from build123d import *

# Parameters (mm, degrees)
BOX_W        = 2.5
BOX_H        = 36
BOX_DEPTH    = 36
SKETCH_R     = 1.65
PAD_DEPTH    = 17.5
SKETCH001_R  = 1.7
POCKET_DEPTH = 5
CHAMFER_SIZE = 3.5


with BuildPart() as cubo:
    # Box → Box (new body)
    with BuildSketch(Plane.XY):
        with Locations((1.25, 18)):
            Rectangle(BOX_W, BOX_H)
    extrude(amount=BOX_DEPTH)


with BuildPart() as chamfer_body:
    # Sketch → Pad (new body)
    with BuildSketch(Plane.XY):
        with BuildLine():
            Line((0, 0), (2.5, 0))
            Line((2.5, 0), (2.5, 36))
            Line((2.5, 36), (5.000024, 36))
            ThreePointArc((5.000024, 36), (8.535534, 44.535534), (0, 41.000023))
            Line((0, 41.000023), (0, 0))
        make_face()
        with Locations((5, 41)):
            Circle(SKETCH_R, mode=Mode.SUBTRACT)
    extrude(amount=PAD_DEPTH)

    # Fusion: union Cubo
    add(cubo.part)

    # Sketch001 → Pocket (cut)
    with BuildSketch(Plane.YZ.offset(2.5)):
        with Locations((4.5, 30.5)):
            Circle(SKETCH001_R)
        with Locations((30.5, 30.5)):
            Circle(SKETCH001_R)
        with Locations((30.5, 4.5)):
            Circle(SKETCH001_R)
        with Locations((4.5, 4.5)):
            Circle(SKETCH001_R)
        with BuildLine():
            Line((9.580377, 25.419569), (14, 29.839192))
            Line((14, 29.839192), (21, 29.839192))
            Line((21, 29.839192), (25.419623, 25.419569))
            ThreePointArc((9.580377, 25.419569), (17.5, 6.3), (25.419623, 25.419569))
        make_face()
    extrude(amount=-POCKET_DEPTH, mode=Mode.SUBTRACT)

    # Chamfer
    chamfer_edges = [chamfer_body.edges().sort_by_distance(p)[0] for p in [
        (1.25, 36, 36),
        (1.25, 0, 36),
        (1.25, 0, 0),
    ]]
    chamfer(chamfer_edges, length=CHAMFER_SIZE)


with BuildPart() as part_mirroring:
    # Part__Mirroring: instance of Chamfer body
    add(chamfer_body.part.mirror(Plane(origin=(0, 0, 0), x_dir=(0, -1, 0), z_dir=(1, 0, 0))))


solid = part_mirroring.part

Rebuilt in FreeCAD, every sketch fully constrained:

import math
import FreeCAD as App
import Part
import Sketcher
from FreeCAD import Vector
Q = App.Units.Quantity


def edges_at(feature, points):
    """Names of the edges that pass closest to the given points."""
    edges = feature.Shape.Edges
    near = lambda p: min(range(len(edges)), key=lambda i: edges[i].distToShape(Part.Vertex(*p))[0])
    return sorted({f"Edge{near(p) + 1}" for p in points})

doc = App.newDocument("Part")
body = doc.addObject("PartDesign::Body", "Body")

sketch1 = body.newObject("Sketcher::SketchObject", "Sketch")
sketch1.AttachmentSupport = (doc.getObject("XY_Plane"), [""])
sketch1.MapMode = "FlatFace"
sketch1.addGeometry([
    Part.LineSegment(Vector(0, 36, 0), Vector(0, 0, 0)),
    Part.LineSegment(Vector(0, 0, 0), Vector(2.5, 0, 0)),
    Part.LineSegment(Vector(2.5, 0, 0), Vector(2.5, 36, 0)),
    Part.LineSegment(Vector(2.5, 36, 0), Vector(0, 36, 0)),
], False)
sketch1.addConstraint([
    Sketcher.Constraint("Coincident", 0, 2, 1, 1),
    Sketcher.Constraint("Coincident", 1, 2, 2, 1),
    Sketcher.Constraint("Coincident", 2, 2, 3, 1),
    Sketcher.Constraint("Coincident", 3, 2, 0, 1),
    Sketcher.Constraint("Vertical", 0),
    Sketcher.Constraint("Horizontal", 1),
    Sketcher.Constraint("Vertical", 2),
    Sketcher.Constraint("Horizontal", 3),
    Sketcher.Constraint("Coincident", 0, 2, -1, 1),
    Sketcher.Constraint("DistanceY", 0, 2, 0, 1, Q("36 mm")),
    Sketcher.Constraint("DistanceX", 1, 1, 1, 2, Q("2.5 mm")),
])
pad1 = body.newObject("PartDesign::Pad", "Pad")
pad1.Profile = sketch1
pad1.Length = 36
body2 = doc.addObject("PartDesign::Body", "Body001")

sketch2 = body2.newObject("Sketcher::SketchObject", "Sketch001")
sketch2.AttachmentSupport = (doc.getObject("XY_Plane001"), [""])
sketch2.MapMode = "FlatFace"
sketch2.addGeometry([
    Part.LineSegment(Vector(0, 0, 0), Vector(2.5, 0, 0)),
    Part.LineSegment(Vector(2.5, 0, 0), Vector(2.5, 36, 0)),
    Part.LineSegment(Vector(2.5, 36, 0), Vector(5, 36, 0)),
    Part.ArcOfCircle(Part.Circle(Vector(5, 41, 0), Vector(0, 0, 1), 5), math.radians(-90), math.radians(180)),
    Part.LineSegment(Vector(0, 41, 0), Vector(0, 0, 0)),
    Part.Circle(Vector(5, 41, 0), Vector(0, 0, 1), 1.6),
], False)
sketch2.addConstraint([
    Sketcher.Constraint("Coincident", 0, 2, 1, 1),
    Sketcher.Constraint("Coincident", 1, 2, 2, 1),
    Sketcher.Constraint("Coincident", 2, 2, 3, 1),
    Sketcher.Constraint("Coincident", 3, 2, 4, 1),
    Sketcher.Constraint("Coincident", 4, 2, 0, 1),
    Sketcher.Constraint("Horizontal", 0),
    Sketcher.Constraint("Vertical", 1),
    Sketcher.Constraint("Horizontal", 2),
    Sketcher.Constraint("Vertical", 4),
    Sketcher.Constraint("Coincident", 4, 2, -1, 1),
    Sketcher.Constraint("Coincident", 5, 3, 3, 3),
    Sketcher.Constraint("Radius", 3, Q("5 mm")),
    Sketcher.Constraint("Diameter", 5, Q("3.3 mm")),
    Sketcher.Constraint("DistanceY", 1, 1, 1, 2, Q("36 mm")),
    Sketcher.Constraint("DistanceX", 0, 1, 0, 2, Q("2.5 mm")),
    Sketcher.Constraint("DistanceX", 2, 1, 2, 2, Q("2.500024 mm")),
    Sketcher.Constraint("DistanceY", 4, 2, 4, 1, Q("41.000023 mm")),
])
pad2 = body2.newObject("PartDesign::Pad", "Pad001")
pad2.Profile = sketch2
pad2.Length = 17.5
doc.recompute()

boolean = body2.newObject("PartDesign::Boolean", "Boolean")
boolean.Type = "Fuse"
boolean.addObjects([body])

sketch3 = body2.newObject("Sketcher::SketchObject", "Sketch002")
sketch3.AttachmentSupport = (doc.getObject("YZ_Plane001"), [""])
sketch3.MapMode = "FlatFace"
sketch3.AttachmentOffset = App.Placement(Vector(0, 0, 2.5), App.Rotation())
sketch3.addGeometry([
    Part.Circle(Vector(4.5, 30.5, 0), Vector(0, 0, 1), 1.7),
    Part.Circle(Vector(30.5, 30.5, 0), Vector(0, 0, 1), 1.7),
    Part.Circle(Vector(30.5, 4.5, 0), Vector(0, 0, 1), 1.7),
    Part.Circle(Vector(4.5, 4.5, 0), Vector(0, 0, 1), 1.7),
    Part.LineSegment(Vector(14, 29.8, 0), Vector(9.6, 25.4, 0)),
    Part.ArcOfCircle(Part.Circle(Vector(17.5, 17.5, 0), Vector(0, 0, 1), 11.2), math.radians(135), math.radians(405)),
    Part.LineSegment(Vector(25.4, 25.4, 0), Vector(21, 29.8, 0)),
    Part.LineSegment(Vector(21, 29.8, 0), Vector(14, 29.8, 0)),
], False)
sketch3.addConstraint([
    Sketcher.Constraint("Coincident", 4, 2, 5, 1),
    Sketcher.Constraint("Coincident", 5, 2, 6, 1),
    Sketcher.Constraint("Coincident", 6, 2, 7, 1),
    Sketcher.Constraint("Coincident", 7, 2, 4, 1),
    Sketcher.Constraint("Horizontal", 7),
    Sketcher.Constraint("Equal", 0, 1),
    Sketcher.Constraint("Equal", 1, 2),
    Sketcher.Constraint("Equal", 2, 3),
    Sketcher.Constraint("Perpendicular", 4, 6),
    Sketcher.Constraint("Horizontal", 0, 3, 1, 3),
    Sketcher.Constraint("Horizontal", 2, 3, 3, 3),
    Sketcher.Constraint("Horizontal", 4, 2, 5, 2),
    Sketcher.Constraint("Vertical", 1, 3, 2, 3),
    Sketcher.Constraint("Vertical", 0, 3, 3, 3),
    Sketcher.Constraint("Equal", 4, 6),
    Sketcher.Constraint("Diameter", 0, Q("3.4 mm")),
    Sketcher.Constraint("Radius", 5, Q("11.2 mm")),
    Sketcher.Constraint("DistanceX", 7, 2, 7, 1, Q("7 mm")),
    Sketcher.Constraint("DistanceX", -1, 1, 6, 2, Q("21 mm")),
    Sketcher.Constraint("DistanceX", 0, 3, 1, 3, Q("26 mm")),
    Sketcher.Constraint("DistanceY", 2, 3, 1, 3, Q("26 mm")),
    Sketcher.Constraint("DistanceX", 0, 3, 5, 3, Q("13 mm")),
    Sketcher.Constraint("DistanceY", 5, 3, 0, 3, Q("13 mm")),
    Sketcher.Constraint("DistanceY", -1, 1, 0, 3, Q("30.5 mm")),
    Sketcher.Constraint("Distance", 4, Q("6.250291 mm")),
])
pocket1 = body2.newObject("PartDesign::Pocket", "Pocket")
pocket1.Profile = sketch3
pocket1.Length = 5
doc.recompute()

chamfer = body2.newObject("PartDesign::Chamfer", "Chamfer")
chamfer.Base = (pocket1, edges_at(pocket1, [(1.25, 36, 36), (1.25, 0, 36), (1.25, 0, 0)]))
chamfer.Size = 3.5
body3 = doc.addObject("PartDesign::Body", "Body002")
doc.recompute()

mirroring = doc.addObject("Part::Mirroring", "Mirroring")
mirroring.Source = body2
mirroring.Base = Vector(0, 0, 0)
mirroring.Normal = Vector(1, 0, 0)
body3.BaseFeature = mirroring
doc.recompute()
body2.Visibility = False
mirroring.Visibility = False

doc.recompute()
